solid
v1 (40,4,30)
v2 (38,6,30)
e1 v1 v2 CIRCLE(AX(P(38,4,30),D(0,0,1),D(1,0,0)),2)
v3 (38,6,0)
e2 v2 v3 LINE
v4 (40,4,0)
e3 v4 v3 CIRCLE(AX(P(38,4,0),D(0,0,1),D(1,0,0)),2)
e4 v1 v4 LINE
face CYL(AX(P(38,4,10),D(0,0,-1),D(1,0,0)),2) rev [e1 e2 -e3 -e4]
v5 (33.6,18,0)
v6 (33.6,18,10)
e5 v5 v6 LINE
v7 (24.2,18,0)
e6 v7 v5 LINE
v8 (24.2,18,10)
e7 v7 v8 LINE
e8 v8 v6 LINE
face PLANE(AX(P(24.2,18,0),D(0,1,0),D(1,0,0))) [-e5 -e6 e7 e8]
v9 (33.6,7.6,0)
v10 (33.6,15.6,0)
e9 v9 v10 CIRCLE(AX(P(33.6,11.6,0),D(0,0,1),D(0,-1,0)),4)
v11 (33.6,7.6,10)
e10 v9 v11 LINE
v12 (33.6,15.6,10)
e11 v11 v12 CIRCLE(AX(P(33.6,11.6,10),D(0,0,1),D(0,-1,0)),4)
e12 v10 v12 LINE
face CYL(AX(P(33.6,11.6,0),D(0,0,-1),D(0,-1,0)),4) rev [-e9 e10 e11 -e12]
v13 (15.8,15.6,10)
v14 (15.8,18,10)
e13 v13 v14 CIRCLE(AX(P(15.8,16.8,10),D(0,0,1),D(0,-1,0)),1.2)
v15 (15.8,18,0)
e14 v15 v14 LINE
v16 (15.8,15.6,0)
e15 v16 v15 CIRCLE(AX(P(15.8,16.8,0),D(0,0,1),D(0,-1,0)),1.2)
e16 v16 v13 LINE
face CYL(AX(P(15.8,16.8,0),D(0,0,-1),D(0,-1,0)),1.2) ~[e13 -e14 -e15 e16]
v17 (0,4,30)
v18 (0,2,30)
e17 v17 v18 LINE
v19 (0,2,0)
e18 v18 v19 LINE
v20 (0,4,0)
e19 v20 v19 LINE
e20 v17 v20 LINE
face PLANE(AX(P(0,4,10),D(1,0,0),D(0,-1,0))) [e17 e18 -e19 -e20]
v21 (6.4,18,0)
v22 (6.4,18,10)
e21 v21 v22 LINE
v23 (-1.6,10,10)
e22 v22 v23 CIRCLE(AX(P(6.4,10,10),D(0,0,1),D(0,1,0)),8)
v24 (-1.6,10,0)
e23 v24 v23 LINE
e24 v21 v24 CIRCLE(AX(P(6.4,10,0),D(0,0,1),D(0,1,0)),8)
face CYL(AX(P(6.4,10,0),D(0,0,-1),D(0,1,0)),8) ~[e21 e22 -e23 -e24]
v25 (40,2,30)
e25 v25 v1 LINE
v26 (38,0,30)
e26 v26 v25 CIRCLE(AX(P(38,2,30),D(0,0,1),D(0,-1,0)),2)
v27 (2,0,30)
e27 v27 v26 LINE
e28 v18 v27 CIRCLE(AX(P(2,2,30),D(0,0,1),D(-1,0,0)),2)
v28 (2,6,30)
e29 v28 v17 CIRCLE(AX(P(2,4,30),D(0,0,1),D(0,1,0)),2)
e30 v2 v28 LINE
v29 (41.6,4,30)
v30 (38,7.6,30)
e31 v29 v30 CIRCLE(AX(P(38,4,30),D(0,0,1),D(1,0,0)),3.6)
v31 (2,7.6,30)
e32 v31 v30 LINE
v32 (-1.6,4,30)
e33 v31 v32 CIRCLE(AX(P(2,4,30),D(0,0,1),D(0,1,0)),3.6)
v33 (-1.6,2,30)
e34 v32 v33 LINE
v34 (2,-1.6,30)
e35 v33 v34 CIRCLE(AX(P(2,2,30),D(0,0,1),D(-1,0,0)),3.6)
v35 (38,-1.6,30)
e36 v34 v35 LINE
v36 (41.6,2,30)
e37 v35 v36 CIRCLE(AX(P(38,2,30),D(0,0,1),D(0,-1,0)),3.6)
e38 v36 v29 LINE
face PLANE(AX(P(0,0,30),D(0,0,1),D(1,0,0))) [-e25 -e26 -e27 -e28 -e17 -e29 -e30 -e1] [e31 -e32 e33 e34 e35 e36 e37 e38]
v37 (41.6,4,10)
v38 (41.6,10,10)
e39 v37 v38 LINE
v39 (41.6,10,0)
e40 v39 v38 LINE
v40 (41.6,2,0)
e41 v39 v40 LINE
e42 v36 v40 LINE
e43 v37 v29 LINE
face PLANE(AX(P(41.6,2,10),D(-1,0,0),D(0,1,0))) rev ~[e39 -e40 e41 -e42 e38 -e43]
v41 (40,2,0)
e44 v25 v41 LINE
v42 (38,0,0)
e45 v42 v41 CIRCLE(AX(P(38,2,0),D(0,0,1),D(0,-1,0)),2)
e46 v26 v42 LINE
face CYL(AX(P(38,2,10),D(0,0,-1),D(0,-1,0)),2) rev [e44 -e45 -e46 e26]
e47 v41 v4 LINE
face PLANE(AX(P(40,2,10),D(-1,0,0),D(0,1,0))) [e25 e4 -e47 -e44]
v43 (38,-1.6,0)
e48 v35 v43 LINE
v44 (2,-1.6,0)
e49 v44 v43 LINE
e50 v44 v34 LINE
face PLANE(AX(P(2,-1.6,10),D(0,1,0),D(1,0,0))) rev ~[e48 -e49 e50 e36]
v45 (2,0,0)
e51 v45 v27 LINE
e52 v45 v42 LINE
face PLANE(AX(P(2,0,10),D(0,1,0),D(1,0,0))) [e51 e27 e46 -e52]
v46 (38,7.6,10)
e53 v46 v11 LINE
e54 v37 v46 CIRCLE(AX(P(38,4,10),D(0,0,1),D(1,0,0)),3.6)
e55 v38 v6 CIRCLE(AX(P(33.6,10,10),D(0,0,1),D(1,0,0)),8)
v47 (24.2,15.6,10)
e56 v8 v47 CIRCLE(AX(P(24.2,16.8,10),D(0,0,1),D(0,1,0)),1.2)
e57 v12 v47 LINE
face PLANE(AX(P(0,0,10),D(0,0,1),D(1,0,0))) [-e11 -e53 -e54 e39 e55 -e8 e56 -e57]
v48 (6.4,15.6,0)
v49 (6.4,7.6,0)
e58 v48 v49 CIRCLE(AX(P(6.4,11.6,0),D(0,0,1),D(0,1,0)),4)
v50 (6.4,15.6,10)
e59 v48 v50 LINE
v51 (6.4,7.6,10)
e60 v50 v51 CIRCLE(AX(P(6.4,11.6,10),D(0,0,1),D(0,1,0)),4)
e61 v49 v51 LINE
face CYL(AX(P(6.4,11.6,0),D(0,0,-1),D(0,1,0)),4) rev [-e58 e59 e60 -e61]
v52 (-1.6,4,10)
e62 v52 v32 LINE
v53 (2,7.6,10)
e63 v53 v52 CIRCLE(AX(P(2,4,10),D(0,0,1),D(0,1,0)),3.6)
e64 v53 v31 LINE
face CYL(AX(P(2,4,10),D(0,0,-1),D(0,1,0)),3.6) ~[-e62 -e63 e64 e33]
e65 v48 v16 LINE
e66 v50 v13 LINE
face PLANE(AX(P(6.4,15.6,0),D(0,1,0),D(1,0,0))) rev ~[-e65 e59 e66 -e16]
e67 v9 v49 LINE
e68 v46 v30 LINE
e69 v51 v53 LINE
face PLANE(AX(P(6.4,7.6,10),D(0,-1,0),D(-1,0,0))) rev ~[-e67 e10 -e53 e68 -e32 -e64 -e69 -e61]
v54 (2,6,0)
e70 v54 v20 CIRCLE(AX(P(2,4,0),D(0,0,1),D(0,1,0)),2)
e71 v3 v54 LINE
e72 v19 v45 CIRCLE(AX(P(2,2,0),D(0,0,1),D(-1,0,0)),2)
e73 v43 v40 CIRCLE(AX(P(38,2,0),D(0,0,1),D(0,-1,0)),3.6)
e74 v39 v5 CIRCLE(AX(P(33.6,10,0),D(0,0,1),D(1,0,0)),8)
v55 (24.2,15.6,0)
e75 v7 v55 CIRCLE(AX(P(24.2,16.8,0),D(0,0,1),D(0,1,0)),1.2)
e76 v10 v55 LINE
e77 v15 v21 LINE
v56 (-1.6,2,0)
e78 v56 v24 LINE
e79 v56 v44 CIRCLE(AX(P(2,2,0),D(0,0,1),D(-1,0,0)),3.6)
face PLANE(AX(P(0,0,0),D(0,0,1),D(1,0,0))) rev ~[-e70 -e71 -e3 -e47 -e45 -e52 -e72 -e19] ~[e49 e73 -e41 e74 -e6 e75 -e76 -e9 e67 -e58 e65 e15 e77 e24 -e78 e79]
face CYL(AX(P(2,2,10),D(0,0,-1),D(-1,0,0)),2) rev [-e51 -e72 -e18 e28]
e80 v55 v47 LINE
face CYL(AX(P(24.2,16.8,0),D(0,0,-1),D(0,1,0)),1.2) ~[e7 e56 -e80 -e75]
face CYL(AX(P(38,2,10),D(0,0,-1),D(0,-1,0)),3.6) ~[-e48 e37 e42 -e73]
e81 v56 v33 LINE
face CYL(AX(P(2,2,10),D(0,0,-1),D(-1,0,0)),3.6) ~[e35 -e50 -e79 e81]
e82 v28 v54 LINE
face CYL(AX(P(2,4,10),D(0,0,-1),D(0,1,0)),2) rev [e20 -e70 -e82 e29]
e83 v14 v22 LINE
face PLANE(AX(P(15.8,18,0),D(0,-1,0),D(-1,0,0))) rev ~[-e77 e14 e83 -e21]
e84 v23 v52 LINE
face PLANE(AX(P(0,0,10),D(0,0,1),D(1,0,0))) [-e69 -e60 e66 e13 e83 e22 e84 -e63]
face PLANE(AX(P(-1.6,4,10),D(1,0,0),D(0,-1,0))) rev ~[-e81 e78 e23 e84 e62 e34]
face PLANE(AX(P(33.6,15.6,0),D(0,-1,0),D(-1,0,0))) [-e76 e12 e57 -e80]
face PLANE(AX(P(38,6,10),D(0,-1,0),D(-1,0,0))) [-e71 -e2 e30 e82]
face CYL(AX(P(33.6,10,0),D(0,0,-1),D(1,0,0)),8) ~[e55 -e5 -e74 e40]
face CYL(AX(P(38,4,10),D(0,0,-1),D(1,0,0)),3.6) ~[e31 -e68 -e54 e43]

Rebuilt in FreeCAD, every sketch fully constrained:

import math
import FreeCAD as App
import Part
import Sketcher

V = App.Vector
Q = App.Units.Quantity

doc = App.newDocument("Part")
body = doc.addObject("PartDesign::Body", "Body")

# Sketch on XY plane
sketch1 = body.newObject("Sketcher::SketchObject", "Sketch")
sketch1.AttachmentSupport = (doc.getObject("XY_Plane"), [""])
sketch1.MapMode = "FlatFace"
sketch1.addGeometry([
    Part.LineSegment(V(33.6, 7.6, 0), V(6.4, 7.6, 0)),  # 0
    Part.ArcOfCircle(Part.Circle(V(6.4, 11.6, 0), V(0, 0, 1), 4), math.radians(90), math.radians(270)),  # 1
    Part.LineSegment(V(6.4, 15.6, 0), V(15.8, 15.6, 0)),  # 2
    Part.ArcOfCircle(Part.Circle(V(15.8, 16.8, 0), V(0, 0, 1), 1.2), math.radians(-90), math.radians(90)),  # 3
    Part.LineSegment(V(15.8, 18, 0), V(6.4, 18, 0)),  # 4
    Part.ArcOfCircle(Part.Circle(V(6.4, 10, 0), V(0, 0, 1), 8), math.radians(90), math.radians(180)),  # 5
    Part.LineSegment(V(-1.6, 10, 0), V(-1.6, 2, 0)),  # 6
    Part.ArcOfCircle(Part.Circle(V(2, 2, 0), V(0, 0, 1), 3.6), math.radians(180), math.radians(270)),  # 7
    Part.LineSegment(V(2, -1.6, 0), V(38, -1.6, 0)),  # 8
    Part.ArcOfCircle(Part.Circle(V(38, 2, 0), V(0, 0, 1), 3.6), math.radians(-90), math.radians(0)),  # 9
    Part.LineSegment(V(41.6, 2, 0), V(41.6, 10, 0)),  # 10
    Part.ArcOfCircle(Part.Circle(V(33.6, 10, 0), V(0, 0, 1), 8), math.radians(0), math.radians(90)),  # 11
    Part.LineSegment(V(33.6, 18, 0), V(24.2, 18, 0)),  # 12
    Part.ArcOfCircle(Part.Circle(V(24.2, 16.8, 0), V(0, 0, 1), 1.2), math.radians(90), math.radians(270)),  # 13
    Part.LineSegment(V(24.2, 15.6, 0), V(33.6, 15.6, 0)),  # 14
    Part.ArcOfCircle(Part.Circle(V(33.6, 11.6, 0), V(0, 0, 1), 4), math.radians(-90), math.radians(90)),  # 15
    Part.LineSegment(V(38, 0, 0), V(2, 0, 0)),  # 16
    Part.ArcOfCircle(Part.Circle(V(2, 2, 0), V(0, 0, 1), 2), math.radians(180), math.radians(270)),  # 17
    Part.LineSegment(V(0, 2, 0), V(0, 4, 0)),  # 18
    Part.ArcOfCircle(Part.Circle(V(2, 4, 0), V(0, 0, 1), 2), math.radians(90), math.radians(180)),  # 19
    Part.LineSegment(V(2, 6, 0), V(38, 6, 0)),  # 20
    Part.ArcOfCircle(Part.Circle(V(38, 4, 0), V(0, 0, 1), 2), math.radians(0), math.radians(90)),  # 21
    Part.LineSegment(V(40, 4, 0), V(40, 2, 0)),  # 22
    Part.ArcOfCircle(Part.Circle(V(38, 2, 0), V(0, 0, 1), 2), math.radians(-90), math.radians(0)),  # 23
], False)
sketch1.addConstraint([
    Sketcher.Constraint("Tangent", 0, 2, 1, 2),
    Sketcher.Constraint("Tangent", 1, 1, 2, 1),
    Sketcher.Constraint("Tangent", 2, 2, 3, 1),
    Sketcher.Constraint("Tangent", 3, 2, 4, 1),
    Sketcher.Constraint("Tangent", 4, 2, 5, 1),
    Sketcher.Constraint("Tangent", 5, 2, 6, 1),
    Sketcher.Constraint("Tangent", 6, 2, 7, 1),
    Sketcher.Constraint("Tangent", 7, 2, 8, 1),
    Sketcher.Constraint("Tangent", 8, 2, 9, 1),
    Sketcher.Constraint("Tangent", 9, 2, 10, 1),
    Sketcher.Constraint("Tangent", 10, 2, 11, 1),
    Sketcher.Constraint("Tangent", 11, 2, 12, 1),
    Sketcher.Constraint("Tangent", 12, 2, 13, 1),
    Sketcher.Constraint("Tangent", 13, 2, 14, 1),
    Sketcher.Constraint("Tangent", 14, 2, 15, 2),
    Sketcher.Constraint("Tangent", 15, 1, 0, 1),
    Sketcher.Constraint("Tangent", 16, 2, 17, 2),
    Sketcher.Constraint("Tangent", 17, 1, 18, 1),
    Sketcher.Constraint("Tangent", 18, 2, 19, 2),
    Sketcher.Constraint("Tangent", 19, 1, 20, 1),
    Sketcher.Constraint("Tangent", 20, 2, 21, 2),
    Sketcher.Constraint("Tangent", 21, 1, 22, 1),
    Sketcher.Constraint("Tangent", 22, 2, 23, 2),
    Sketcher.Constraint("Tangent", 23, 1, 16, 1),
    Sketcher.Constraint("Horizontal", 0),
    Sketcher.Constraint("Horizontal", 2),
    Sketcher.Constraint("Horizontal", 4),
    Sketcher.Constraint("Vertical", 6),
    Sketcher.Constraint("Horizontal", 8),
    Sketcher.Constraint("Vertical", 10),
    Sketcher.Constraint("Horizontal", 12),
    Sketcher.Constraint("Horizontal", 14),
    Sketcher.Constraint("Horizontal", 16),
    Sketcher.Constraint("Vertical", 18),
    Sketcher.Constraint("Horizontal", 20),
    Sketcher.Constraint("Vertical", 22),
    Sketcher.Constraint("Coincident", 17, 3, 7, 3),
    Sketcher.Constraint("Coincident", 23, 3, 9, 3),
    Sketcher.Constraint("Equal", 7, 9),
    Sketcher.Constraint("Equal", 5, 11),
    Sketcher.Constraint("Equal", 3, 13),
    Sketcher.Constraint("Equal", 1, 15),
    Sketcher.Constraint("Equal", 17, 19),
    Sketcher.Constraint("Equal", 19, 21),
    Sketcher.Constraint("PointOnObject", 16, 2, -1),
    Sketcher.Constraint("PointOnObject", 17, 1, -2),
    Sketcher.Constraint("Vertical", 1, 3, 5, 3),
    Sketcher.Constraint("Vertical", 11, 3, 15, 3),
    Sketcher.Constraint("Equal", 4, 12),
    Sketcher.Constraint("Radius", 1, Q("4 mm")),
    Sketcher.Constraint("Radius", 5, Q("8 mm")),
    Sketcher.Constraint("Radius", 17, Q("2 mm")),
    Sketcher.Constraint("Radius", 3, Q("1.2 mm")),
    Sketcher.Constraint("DistanceY", 6, 2, 6, 1, Q("8 mm")),
    Sketcher.Constraint("DistanceY", 18, 1, 18, 2, Q("2 mm")),
    Sketcher.Constraint("DistanceX", -1, 1, 21, 1, Q("40 mm")),
    Sketcher.Constraint("DistanceX", 5, 2, -1, 1, Q("1.6 mm")),
    Sketcher.Constraint("DistanceX", 2, 1, 2, 2, Q("9.4 mm")),
])
pad1 = body.newObject("PartDesign::Pad", "Pad")
pad1.Profile = sketch1
pad1.Length = 10

# Sketch on XY plane
sketch2 = body.newObject("Sketcher::SketchObject", "Sketch001")
sketch2.AttachmentSupport = (doc.getObject("XY_Plane"), [""])
sketch2.MapMode = "FlatFace"
sketch2.AttachmentOffset = App.Placement(V(0, 0, 10), App.Rotation())
sketch2.addGeometry([
    Part.ArcOfCircle(Part.Circle(V(2, 4, 0), V(0, 0, 1), 3.6), math.radians(90), math.radians(180)),  # 0
    Part.LineSegment(V(-1.6, 4, 0), V(-1.6, 2, 0)),  # 1
    Part.ArcOfCircle(Part.Circle(V(2, 2, 0), V(0, 0, 1), 3.6), math.radians(180), math.radians(270)),  # 2
    Part.LineSegment(V(2, -1.6, 0), V(38, -1.6, 0)),  # 3
    Part.ArcOfCircle(Part.Circle(V(38, 2, 0), V(0, 0, 1), 3.6), math.radians(-90), math.radians(0)),  # 4
    Part.LineSegment(V(41.6, 2, 0), V(41.6, 4, 0)),  # 5
    Part.ArcOfCircle(Part.Circle(V(38, 4, 0), V(0, 0, 1), 3.6), math.radians(0), math.radians(90)),  # 6
    Part.LineSegment(V(38, 7.6, 0), V(2, 7.6, 0)),  # 7
    Part.LineSegment(V(38, 0, 0), V(2, 0, 0)),  # 8
    Part.ArcOfCircle(Part.Circle(V(2, 2, 0), V(0, 0, 1), 2), math.radians(180), math.radians(270)),  # 9
    Part.LineSegment(V(0, 2, 0), V(0, 4, 0)),  # 10
    Part.ArcOfCircle(Part.Circle(V(2, 4, 0), V(0, 0, 1), 2), math.radians(90), math.radians(180)),  # 11
    Part.LineSegment(V(2, 6, 0), V(38, 6, 0)),  # 12
    Part.ArcOfCircle(Part.Circle(V(38, 4, 0), V(0, 0, 1), 2), math.radians(0), math.radians(90)),  # 13
    Part.LineSegment(V(40, 4, 0), V(40, 2, 0)),  # 14
    Part.ArcOfCircle(Part.Circle(V(38, 2, 0), V(0, 0, 1), 2), math.radians(-90), math.radians(0)),  # 15
], False)
sketch2.addConstraint([
    Sketcher.Constraint("Tangent", 0, 2, 1, 1),
    Sketcher.Constraint("Tangent", 1, 2, 2, 1),
    Sketcher.Constraint("Tangent", 2, 2, 3, 1),
    Sketcher.Constraint("Tangent", 3, 2, 4, 1),
    Sketcher.Constraint("Tangent", 4, 2, 5, 1),
    Sketcher.Constraint("Tangent", 5, 2, 6, 1),
    Sketcher.Constraint("Tangent", 6, 2, 7, 1),
    Sketcher.Constraint("Tangent", 7, 2, 0, 1),
    Sketcher.Constraint("Tangent", 8, 2, 9, 2),
    Sketcher.Constraint("Tangent", 9, 1, 10, 1),
    Sketcher.Constraint("Tangent", 10, 2, 11, 2),
    Sketcher.Constraint("Tangent", 11, 1, 12, 1),
    Sketcher.Constraint("Tangent", 12, 2, 13, 2),
    Sketcher.Constraint("Tangent", 13, 1, 14, 1),
    Sketcher.Constraint("Tangent", 14, 2, 15, 2),
    Sketcher.Constraint("Tangent", 15, 1, 8, 1),
    Sketcher.Constraint("Vertical", 1),
    Sketcher.Constraint("Horizontal", 3),
    Sketcher.Constraint("Vertical", 5),
    Sketcher.Constraint("Horizontal", 7),
    Sketcher.Constraint("Horizontal", 8),
    Sketcher.Constraint("Vertical", 10),
    Sketcher.Constraint("Horizontal", 12),
    Sketcher.Constraint("Vertical", 14),
    Sketcher.Constraint("Coincident", 9, 3, 2, 3),
    Sketcher.Constraint("Coincident", 11, 3, 0, 3),
    Sketcher.Constraint("Coincident", 13, 3, 6, 3),
    Sketcher.Constraint("Equal", 0, 2),
    Sketcher.Constraint("Equal", 2, 4),
    Sketcher.Constraint("Equal", 4, 6),
    Sketcher.Constraint("Equal", 13, 15),
    Sketcher.Constraint("PointOnObject", 8, 2, -1),
    Sketcher.Constraint("PointOnObject", 9, 1, -2),
    Sketcher.Constraint("Radius", 9, Q("2 mm")),
    Sketcher.Constraint("DistanceY", 1, 2, 1, 1, Q("2 mm")),
    Sketcher.Constraint("DistanceX", -1, 1, 13, 1, Q("40 mm")),
    Sketcher.Constraint("DistanceX", 0, 2, -1, 1, Q("1.6 mm")),
])
pad2 = body.newObject("PartDesign::Pad", "Pad001")
pad2.Profile = sketch2
pad2.Length = 20

doc.recompute()
